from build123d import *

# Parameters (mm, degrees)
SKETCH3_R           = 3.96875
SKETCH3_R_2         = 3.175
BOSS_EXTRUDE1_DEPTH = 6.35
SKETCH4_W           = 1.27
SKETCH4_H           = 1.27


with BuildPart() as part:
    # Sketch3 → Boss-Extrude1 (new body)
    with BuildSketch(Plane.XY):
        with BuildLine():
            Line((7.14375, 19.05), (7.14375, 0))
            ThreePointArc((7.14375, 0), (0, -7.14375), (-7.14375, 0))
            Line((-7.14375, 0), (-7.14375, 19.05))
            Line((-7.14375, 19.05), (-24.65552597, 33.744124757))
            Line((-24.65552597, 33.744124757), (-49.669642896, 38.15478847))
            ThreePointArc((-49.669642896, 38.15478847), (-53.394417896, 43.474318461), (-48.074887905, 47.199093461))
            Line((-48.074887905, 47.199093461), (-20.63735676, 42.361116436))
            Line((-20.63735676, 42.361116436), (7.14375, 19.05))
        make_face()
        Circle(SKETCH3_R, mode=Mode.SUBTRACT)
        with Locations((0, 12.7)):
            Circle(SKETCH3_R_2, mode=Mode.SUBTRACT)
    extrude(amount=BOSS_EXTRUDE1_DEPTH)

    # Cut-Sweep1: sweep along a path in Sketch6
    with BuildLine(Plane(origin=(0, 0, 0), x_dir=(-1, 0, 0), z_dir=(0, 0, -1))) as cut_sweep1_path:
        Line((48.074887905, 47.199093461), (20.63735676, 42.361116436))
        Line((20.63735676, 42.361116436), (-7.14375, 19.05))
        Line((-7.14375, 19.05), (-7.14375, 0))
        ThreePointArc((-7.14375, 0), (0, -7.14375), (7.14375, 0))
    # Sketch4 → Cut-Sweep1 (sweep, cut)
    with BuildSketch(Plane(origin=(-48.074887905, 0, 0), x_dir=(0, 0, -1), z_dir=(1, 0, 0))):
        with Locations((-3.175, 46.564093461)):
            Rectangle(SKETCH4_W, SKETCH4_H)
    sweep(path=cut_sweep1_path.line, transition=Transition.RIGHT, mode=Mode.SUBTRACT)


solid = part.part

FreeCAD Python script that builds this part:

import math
import FreeCAD as App
import Part
import Sketcher
Q = App.Units.Quantity


def add_polygon(sketch, points):
    """Adds a closed chain of lines whose ends are joined by coincident constraints."""
    first, n = sketch.GeometryCount, len(points)
    for a, b in zip(points, points[1:] + points[:1]):
        sketch.addGeometry(Part.LineSegment(App.Vector(*a, 0), App.Vector(*b, 0)), False)
    for i in range(n):
        sketch.addConstraint(Sketcher.Constraint("Coincident", first + i, 2, first + (i + 1) % n, 1))

doc = App.newDocument("Part")
body = doc.addObject("PartDesign::Body", "Body")

# Sketch on XY plane
sketch1 = body.newObject("Sketcher::SketchObject", "Sketch")
sketch1.AttachmentSupport = (doc.getObject("XY_Plane"), [""])
sketch1.MapMode = "FlatFace"
sketch1.addGeometry(Part.LineSegment(App.Vector(7.1, 0, 0), App.Vector(7.1, 19.1, 0)), False)
sketch1.addGeometry(Part.LineSegment(App.Vector(7.1, 19.1, 0), App.Vector(-20.6, 42.4, 0)), False)
sketch1.addGeometry(Part.LineSegment(App.Vector(-20.6, 42.4, 0), App.Vector(-48.1, 47.2, 0)), False)
sketch1.addGeometry(Part.ArcOfCircle(Part.Circle(App.Vector(-48.9, 42.7, 0), App.Vector(0, 0, 1), 4.6), math.radians(80), math.radians(260)), False)
sketch1.addGeometry(Part.LineSegment(App.Vector(-49.7, 38.2, 0), App.Vector(-24.7, 33.7, 0)), False)
sketch1.addGeometry(Part.LineSegment(App.Vector(-24.7, 33.7, 0), App.Vector(-7.1, 19.1, 0)), False)
sketch1.addGeometry(Part.LineSegment(App.Vector(-7.1, 19.1, 0), App.Vector(-7.1, 0, 0)), False)
sketch1.addGeometry(Part.ArcOfCircle(Part.Circle(App.Vector(0, 0, 0), App.Vector(0, 0, 1), 7.1), math.radians(180), math.radians(360)), False)
sketch1.addGeometry(Part.Circle(App.Vector(0, 0, 0), App.Vector(0, 0, 1), 4), False)
sketch1.addGeometry(Part.Circle(App.Vector(0, 12.7, 0), App.Vector(0, 0, 1), 3.2), False)
sketch1.addConstraint(Sketcher.Constraint("Coincident", 0, 2, 1, 1))
sketch1.addConstraint(Sketcher.Constraint("Coincident", 1, 2, 2, 1))
sketch1.addConstraint(Sketcher.Constraint("Tangent", 2, 2, 3, 1))
sketch1.addConstraint(Sketcher.Constraint("Tangent", 3, 2, 4, 1))
sketch1.addConstraint(Sketcher.Constraint("Coincident", 4, 2, 5, 1))
sketch1.addConstraint(Sketcher.Constraint("Coincident", 5, 2, 6, 1))
sketch1.addConstraint(Sketcher.Constraint("Tangent", 6, 2, 7, 1))
sketch1.addConstraint(Sketcher.Constraint("Tangent", 7, 2, 0, 1))
sketch1.addConstraint(Sketcher.Constraint("Vertical", 0))
sketch1.addConstraint(Sketcher.Constraint("Vertical", 6))
sketch1.addConstraint(Sketcher.Constraint("Coincident", 7, 3, -1, 1))
sketch1.addConstraint(Sketcher.Constraint("Coincident", 8, 3, -1, 1))
sketch1.addConstraint(Sketcher.Constraint("PointOnObject", 9, 3, -2))
sketch1.addConstraint(Sketcher.Constraint("Parallel", 2, 4))
sketch1.addConstraint(Sketcher.Constraint("Parallel", 1, 5))
sketch1.addConstraint(Sketcher.Constraint("Horizontal", 0, 2, 5, 2))
sketch1.addConstraint(Sketcher.Constraint("Diameter", 9, Q("0.25 in")))
sketch1.addConstraint(Sketcher.Constraint("Distance", 4, Q("1 in")))
sketch1.addConstraint(Sketcher.Constraint("Diameter", 8, Q("0.3125 in")))
sketch1.addConstraint(Sketcher.Constraint("Angle", 1, Q("140 deg")))
sketch1.addConstraint(Sketcher.Constraint("Angle", 2, Q("170 deg")))
sketch1.addConstraint(Sketcher.Constraint("Radius", 7, Q("0.28125 in")))
sketch1.addConstraint(Sketcher.Constraint("Distance", 5, Q("0.9 in")))
sketch1.addConstraint(Sketcher.Constraint("DistanceY", 0, 1, 0, 2, Q("0.75 in")))
sketch1.addConstraint(Sketcher.Constraint("DistanceY", -1, 1, 9, 3, Q("0.5 in")))
sketch1.addConstraint(Sketcher.Constraint("Radius", 3, 4.591914))
pad1 = body.newObject("PartDesign::Pad", "Pad")
pad1.Profile = sketch1
pad1.Length = Q("0.25 in")

# Sketch on YZ plane
sketch2 = body.newObject("Sketcher::SketchObject", "Sketch001")
sketch2.AttachmentSupport = (doc.getObject("YZ_Plane"), [""])
sketch2.MapMode = "FlatFace"
sketch2.AttachmentOffset = App.Placement(App.Vector(0, 0, -48.074888), App.Rotation())
add_polygon(sketch2, [(47.2, 3.8), (45.9, 3.8), (45.9, 2.5), (47.2, 2.5)])  # lines 0-3
sketch2.addConstraint(Sketcher.Constraint("Horizontal", 0))
sketch2.addConstraint(Sketcher.Constraint("Vertical", 1))
sketch2.addConstraint(Sketcher.Constraint("Horizontal", 2))
sketch2.addConstraint(Sketcher.Constraint("Vertical", 3))
sketch2.addConstraint(Sketcher.Constraint("Equal", 2, 1))
sketch2.addConstraint(Sketcher.Constraint("DistanceX", 0, 2, 0, 1, Q("0.05 in")))
sketch2.addConstraint(Sketcher.Constraint("DistanceY", -1, 1, 1, 2, Q("0.1 in")))
sketch2.addConstraint(Sketcher.Constraint("DistanceX", -1, 1, 0, 2, 45.929093))

# Sketch on XY plane
sketch3 = body.newObject("Sketcher::SketchObject", "Sketch002")
sketch3.AttachmentSupport = (doc.getObject("XY_Plane"), [""])
sketch3.MapMode = "FlatFace"
sketch3.addGeometry(Part.LineSegment(App.Vector(-48, 47, 0), App.Vector(-21, 42, 0)), False)
sketch3.addGeometry(Part.LineSegment(App.Vector(-21, 42, 0), App.Vector(7, 19, 0)), False)
sketch3.addGeometry(Part.LineSegment(App.Vector(7, 19, 0), App.Vector(7, 0, 0)), False)
sketch3.addGeometry(Part.ArcOfCircle(Part.Circle(App.Vector(0, 0, 0), App.Vector(0, 0, 1), 7), math.radians(180), math.radians(360)), False)
sketch3.addConstraint(Sketcher.Constraint("Coincident", 0, 2, 1, 1))
sketch3.addConstraint(Sketcher.Constraint("Coincident", 1, 2, 2, 1))
sketch3.addConstraint(Sketcher.Constraint("Tangent", 2, 2, 3, 2))
sketch3.addConstraint(Sketcher.Constraint("Vertical", 2))
sketch3.addConstraint(Sketcher.Constraint("Coincident", 3, 3, -1, 1))
sketch3.addConstraint(Sketcher.Constraint("PointOnObject", 3, 1, -1))
sketch3.addConstraint(Sketcher.Constraint("Angle", 0, Q("-10 deg")))
sketch3.addConstraint(Sketcher.Constraint("Angle", 1, Q("-40 deg")))
sketch3.addConstraint(Sketcher.Constraint("Radius", 3, Q("0.28125 in")))
sketch3.addConstraint(Sketcher.Constraint("DistanceY", 2, 2, 2, 1, Q("0.75 in")))
sketch3.addConstraint(Sketcher.Constraint("Distance", 0, 27.860799))
sketch3.addConstraint(Sketcher.Constraint("Distance", 1, 36.265659))
doc.recompute()

subtractivepipe = body.newObject("PartDesign::SubtractivePipe", "SubtractivePipe")
subtractivepipe.Profile = sketch2
subtractivepipe.Spine = (sketch3, ["Edge1", "Edge2", "Edge3", "Edge4"])
subtractivepipe.Transition = "Right corner"

doc.recompute()
